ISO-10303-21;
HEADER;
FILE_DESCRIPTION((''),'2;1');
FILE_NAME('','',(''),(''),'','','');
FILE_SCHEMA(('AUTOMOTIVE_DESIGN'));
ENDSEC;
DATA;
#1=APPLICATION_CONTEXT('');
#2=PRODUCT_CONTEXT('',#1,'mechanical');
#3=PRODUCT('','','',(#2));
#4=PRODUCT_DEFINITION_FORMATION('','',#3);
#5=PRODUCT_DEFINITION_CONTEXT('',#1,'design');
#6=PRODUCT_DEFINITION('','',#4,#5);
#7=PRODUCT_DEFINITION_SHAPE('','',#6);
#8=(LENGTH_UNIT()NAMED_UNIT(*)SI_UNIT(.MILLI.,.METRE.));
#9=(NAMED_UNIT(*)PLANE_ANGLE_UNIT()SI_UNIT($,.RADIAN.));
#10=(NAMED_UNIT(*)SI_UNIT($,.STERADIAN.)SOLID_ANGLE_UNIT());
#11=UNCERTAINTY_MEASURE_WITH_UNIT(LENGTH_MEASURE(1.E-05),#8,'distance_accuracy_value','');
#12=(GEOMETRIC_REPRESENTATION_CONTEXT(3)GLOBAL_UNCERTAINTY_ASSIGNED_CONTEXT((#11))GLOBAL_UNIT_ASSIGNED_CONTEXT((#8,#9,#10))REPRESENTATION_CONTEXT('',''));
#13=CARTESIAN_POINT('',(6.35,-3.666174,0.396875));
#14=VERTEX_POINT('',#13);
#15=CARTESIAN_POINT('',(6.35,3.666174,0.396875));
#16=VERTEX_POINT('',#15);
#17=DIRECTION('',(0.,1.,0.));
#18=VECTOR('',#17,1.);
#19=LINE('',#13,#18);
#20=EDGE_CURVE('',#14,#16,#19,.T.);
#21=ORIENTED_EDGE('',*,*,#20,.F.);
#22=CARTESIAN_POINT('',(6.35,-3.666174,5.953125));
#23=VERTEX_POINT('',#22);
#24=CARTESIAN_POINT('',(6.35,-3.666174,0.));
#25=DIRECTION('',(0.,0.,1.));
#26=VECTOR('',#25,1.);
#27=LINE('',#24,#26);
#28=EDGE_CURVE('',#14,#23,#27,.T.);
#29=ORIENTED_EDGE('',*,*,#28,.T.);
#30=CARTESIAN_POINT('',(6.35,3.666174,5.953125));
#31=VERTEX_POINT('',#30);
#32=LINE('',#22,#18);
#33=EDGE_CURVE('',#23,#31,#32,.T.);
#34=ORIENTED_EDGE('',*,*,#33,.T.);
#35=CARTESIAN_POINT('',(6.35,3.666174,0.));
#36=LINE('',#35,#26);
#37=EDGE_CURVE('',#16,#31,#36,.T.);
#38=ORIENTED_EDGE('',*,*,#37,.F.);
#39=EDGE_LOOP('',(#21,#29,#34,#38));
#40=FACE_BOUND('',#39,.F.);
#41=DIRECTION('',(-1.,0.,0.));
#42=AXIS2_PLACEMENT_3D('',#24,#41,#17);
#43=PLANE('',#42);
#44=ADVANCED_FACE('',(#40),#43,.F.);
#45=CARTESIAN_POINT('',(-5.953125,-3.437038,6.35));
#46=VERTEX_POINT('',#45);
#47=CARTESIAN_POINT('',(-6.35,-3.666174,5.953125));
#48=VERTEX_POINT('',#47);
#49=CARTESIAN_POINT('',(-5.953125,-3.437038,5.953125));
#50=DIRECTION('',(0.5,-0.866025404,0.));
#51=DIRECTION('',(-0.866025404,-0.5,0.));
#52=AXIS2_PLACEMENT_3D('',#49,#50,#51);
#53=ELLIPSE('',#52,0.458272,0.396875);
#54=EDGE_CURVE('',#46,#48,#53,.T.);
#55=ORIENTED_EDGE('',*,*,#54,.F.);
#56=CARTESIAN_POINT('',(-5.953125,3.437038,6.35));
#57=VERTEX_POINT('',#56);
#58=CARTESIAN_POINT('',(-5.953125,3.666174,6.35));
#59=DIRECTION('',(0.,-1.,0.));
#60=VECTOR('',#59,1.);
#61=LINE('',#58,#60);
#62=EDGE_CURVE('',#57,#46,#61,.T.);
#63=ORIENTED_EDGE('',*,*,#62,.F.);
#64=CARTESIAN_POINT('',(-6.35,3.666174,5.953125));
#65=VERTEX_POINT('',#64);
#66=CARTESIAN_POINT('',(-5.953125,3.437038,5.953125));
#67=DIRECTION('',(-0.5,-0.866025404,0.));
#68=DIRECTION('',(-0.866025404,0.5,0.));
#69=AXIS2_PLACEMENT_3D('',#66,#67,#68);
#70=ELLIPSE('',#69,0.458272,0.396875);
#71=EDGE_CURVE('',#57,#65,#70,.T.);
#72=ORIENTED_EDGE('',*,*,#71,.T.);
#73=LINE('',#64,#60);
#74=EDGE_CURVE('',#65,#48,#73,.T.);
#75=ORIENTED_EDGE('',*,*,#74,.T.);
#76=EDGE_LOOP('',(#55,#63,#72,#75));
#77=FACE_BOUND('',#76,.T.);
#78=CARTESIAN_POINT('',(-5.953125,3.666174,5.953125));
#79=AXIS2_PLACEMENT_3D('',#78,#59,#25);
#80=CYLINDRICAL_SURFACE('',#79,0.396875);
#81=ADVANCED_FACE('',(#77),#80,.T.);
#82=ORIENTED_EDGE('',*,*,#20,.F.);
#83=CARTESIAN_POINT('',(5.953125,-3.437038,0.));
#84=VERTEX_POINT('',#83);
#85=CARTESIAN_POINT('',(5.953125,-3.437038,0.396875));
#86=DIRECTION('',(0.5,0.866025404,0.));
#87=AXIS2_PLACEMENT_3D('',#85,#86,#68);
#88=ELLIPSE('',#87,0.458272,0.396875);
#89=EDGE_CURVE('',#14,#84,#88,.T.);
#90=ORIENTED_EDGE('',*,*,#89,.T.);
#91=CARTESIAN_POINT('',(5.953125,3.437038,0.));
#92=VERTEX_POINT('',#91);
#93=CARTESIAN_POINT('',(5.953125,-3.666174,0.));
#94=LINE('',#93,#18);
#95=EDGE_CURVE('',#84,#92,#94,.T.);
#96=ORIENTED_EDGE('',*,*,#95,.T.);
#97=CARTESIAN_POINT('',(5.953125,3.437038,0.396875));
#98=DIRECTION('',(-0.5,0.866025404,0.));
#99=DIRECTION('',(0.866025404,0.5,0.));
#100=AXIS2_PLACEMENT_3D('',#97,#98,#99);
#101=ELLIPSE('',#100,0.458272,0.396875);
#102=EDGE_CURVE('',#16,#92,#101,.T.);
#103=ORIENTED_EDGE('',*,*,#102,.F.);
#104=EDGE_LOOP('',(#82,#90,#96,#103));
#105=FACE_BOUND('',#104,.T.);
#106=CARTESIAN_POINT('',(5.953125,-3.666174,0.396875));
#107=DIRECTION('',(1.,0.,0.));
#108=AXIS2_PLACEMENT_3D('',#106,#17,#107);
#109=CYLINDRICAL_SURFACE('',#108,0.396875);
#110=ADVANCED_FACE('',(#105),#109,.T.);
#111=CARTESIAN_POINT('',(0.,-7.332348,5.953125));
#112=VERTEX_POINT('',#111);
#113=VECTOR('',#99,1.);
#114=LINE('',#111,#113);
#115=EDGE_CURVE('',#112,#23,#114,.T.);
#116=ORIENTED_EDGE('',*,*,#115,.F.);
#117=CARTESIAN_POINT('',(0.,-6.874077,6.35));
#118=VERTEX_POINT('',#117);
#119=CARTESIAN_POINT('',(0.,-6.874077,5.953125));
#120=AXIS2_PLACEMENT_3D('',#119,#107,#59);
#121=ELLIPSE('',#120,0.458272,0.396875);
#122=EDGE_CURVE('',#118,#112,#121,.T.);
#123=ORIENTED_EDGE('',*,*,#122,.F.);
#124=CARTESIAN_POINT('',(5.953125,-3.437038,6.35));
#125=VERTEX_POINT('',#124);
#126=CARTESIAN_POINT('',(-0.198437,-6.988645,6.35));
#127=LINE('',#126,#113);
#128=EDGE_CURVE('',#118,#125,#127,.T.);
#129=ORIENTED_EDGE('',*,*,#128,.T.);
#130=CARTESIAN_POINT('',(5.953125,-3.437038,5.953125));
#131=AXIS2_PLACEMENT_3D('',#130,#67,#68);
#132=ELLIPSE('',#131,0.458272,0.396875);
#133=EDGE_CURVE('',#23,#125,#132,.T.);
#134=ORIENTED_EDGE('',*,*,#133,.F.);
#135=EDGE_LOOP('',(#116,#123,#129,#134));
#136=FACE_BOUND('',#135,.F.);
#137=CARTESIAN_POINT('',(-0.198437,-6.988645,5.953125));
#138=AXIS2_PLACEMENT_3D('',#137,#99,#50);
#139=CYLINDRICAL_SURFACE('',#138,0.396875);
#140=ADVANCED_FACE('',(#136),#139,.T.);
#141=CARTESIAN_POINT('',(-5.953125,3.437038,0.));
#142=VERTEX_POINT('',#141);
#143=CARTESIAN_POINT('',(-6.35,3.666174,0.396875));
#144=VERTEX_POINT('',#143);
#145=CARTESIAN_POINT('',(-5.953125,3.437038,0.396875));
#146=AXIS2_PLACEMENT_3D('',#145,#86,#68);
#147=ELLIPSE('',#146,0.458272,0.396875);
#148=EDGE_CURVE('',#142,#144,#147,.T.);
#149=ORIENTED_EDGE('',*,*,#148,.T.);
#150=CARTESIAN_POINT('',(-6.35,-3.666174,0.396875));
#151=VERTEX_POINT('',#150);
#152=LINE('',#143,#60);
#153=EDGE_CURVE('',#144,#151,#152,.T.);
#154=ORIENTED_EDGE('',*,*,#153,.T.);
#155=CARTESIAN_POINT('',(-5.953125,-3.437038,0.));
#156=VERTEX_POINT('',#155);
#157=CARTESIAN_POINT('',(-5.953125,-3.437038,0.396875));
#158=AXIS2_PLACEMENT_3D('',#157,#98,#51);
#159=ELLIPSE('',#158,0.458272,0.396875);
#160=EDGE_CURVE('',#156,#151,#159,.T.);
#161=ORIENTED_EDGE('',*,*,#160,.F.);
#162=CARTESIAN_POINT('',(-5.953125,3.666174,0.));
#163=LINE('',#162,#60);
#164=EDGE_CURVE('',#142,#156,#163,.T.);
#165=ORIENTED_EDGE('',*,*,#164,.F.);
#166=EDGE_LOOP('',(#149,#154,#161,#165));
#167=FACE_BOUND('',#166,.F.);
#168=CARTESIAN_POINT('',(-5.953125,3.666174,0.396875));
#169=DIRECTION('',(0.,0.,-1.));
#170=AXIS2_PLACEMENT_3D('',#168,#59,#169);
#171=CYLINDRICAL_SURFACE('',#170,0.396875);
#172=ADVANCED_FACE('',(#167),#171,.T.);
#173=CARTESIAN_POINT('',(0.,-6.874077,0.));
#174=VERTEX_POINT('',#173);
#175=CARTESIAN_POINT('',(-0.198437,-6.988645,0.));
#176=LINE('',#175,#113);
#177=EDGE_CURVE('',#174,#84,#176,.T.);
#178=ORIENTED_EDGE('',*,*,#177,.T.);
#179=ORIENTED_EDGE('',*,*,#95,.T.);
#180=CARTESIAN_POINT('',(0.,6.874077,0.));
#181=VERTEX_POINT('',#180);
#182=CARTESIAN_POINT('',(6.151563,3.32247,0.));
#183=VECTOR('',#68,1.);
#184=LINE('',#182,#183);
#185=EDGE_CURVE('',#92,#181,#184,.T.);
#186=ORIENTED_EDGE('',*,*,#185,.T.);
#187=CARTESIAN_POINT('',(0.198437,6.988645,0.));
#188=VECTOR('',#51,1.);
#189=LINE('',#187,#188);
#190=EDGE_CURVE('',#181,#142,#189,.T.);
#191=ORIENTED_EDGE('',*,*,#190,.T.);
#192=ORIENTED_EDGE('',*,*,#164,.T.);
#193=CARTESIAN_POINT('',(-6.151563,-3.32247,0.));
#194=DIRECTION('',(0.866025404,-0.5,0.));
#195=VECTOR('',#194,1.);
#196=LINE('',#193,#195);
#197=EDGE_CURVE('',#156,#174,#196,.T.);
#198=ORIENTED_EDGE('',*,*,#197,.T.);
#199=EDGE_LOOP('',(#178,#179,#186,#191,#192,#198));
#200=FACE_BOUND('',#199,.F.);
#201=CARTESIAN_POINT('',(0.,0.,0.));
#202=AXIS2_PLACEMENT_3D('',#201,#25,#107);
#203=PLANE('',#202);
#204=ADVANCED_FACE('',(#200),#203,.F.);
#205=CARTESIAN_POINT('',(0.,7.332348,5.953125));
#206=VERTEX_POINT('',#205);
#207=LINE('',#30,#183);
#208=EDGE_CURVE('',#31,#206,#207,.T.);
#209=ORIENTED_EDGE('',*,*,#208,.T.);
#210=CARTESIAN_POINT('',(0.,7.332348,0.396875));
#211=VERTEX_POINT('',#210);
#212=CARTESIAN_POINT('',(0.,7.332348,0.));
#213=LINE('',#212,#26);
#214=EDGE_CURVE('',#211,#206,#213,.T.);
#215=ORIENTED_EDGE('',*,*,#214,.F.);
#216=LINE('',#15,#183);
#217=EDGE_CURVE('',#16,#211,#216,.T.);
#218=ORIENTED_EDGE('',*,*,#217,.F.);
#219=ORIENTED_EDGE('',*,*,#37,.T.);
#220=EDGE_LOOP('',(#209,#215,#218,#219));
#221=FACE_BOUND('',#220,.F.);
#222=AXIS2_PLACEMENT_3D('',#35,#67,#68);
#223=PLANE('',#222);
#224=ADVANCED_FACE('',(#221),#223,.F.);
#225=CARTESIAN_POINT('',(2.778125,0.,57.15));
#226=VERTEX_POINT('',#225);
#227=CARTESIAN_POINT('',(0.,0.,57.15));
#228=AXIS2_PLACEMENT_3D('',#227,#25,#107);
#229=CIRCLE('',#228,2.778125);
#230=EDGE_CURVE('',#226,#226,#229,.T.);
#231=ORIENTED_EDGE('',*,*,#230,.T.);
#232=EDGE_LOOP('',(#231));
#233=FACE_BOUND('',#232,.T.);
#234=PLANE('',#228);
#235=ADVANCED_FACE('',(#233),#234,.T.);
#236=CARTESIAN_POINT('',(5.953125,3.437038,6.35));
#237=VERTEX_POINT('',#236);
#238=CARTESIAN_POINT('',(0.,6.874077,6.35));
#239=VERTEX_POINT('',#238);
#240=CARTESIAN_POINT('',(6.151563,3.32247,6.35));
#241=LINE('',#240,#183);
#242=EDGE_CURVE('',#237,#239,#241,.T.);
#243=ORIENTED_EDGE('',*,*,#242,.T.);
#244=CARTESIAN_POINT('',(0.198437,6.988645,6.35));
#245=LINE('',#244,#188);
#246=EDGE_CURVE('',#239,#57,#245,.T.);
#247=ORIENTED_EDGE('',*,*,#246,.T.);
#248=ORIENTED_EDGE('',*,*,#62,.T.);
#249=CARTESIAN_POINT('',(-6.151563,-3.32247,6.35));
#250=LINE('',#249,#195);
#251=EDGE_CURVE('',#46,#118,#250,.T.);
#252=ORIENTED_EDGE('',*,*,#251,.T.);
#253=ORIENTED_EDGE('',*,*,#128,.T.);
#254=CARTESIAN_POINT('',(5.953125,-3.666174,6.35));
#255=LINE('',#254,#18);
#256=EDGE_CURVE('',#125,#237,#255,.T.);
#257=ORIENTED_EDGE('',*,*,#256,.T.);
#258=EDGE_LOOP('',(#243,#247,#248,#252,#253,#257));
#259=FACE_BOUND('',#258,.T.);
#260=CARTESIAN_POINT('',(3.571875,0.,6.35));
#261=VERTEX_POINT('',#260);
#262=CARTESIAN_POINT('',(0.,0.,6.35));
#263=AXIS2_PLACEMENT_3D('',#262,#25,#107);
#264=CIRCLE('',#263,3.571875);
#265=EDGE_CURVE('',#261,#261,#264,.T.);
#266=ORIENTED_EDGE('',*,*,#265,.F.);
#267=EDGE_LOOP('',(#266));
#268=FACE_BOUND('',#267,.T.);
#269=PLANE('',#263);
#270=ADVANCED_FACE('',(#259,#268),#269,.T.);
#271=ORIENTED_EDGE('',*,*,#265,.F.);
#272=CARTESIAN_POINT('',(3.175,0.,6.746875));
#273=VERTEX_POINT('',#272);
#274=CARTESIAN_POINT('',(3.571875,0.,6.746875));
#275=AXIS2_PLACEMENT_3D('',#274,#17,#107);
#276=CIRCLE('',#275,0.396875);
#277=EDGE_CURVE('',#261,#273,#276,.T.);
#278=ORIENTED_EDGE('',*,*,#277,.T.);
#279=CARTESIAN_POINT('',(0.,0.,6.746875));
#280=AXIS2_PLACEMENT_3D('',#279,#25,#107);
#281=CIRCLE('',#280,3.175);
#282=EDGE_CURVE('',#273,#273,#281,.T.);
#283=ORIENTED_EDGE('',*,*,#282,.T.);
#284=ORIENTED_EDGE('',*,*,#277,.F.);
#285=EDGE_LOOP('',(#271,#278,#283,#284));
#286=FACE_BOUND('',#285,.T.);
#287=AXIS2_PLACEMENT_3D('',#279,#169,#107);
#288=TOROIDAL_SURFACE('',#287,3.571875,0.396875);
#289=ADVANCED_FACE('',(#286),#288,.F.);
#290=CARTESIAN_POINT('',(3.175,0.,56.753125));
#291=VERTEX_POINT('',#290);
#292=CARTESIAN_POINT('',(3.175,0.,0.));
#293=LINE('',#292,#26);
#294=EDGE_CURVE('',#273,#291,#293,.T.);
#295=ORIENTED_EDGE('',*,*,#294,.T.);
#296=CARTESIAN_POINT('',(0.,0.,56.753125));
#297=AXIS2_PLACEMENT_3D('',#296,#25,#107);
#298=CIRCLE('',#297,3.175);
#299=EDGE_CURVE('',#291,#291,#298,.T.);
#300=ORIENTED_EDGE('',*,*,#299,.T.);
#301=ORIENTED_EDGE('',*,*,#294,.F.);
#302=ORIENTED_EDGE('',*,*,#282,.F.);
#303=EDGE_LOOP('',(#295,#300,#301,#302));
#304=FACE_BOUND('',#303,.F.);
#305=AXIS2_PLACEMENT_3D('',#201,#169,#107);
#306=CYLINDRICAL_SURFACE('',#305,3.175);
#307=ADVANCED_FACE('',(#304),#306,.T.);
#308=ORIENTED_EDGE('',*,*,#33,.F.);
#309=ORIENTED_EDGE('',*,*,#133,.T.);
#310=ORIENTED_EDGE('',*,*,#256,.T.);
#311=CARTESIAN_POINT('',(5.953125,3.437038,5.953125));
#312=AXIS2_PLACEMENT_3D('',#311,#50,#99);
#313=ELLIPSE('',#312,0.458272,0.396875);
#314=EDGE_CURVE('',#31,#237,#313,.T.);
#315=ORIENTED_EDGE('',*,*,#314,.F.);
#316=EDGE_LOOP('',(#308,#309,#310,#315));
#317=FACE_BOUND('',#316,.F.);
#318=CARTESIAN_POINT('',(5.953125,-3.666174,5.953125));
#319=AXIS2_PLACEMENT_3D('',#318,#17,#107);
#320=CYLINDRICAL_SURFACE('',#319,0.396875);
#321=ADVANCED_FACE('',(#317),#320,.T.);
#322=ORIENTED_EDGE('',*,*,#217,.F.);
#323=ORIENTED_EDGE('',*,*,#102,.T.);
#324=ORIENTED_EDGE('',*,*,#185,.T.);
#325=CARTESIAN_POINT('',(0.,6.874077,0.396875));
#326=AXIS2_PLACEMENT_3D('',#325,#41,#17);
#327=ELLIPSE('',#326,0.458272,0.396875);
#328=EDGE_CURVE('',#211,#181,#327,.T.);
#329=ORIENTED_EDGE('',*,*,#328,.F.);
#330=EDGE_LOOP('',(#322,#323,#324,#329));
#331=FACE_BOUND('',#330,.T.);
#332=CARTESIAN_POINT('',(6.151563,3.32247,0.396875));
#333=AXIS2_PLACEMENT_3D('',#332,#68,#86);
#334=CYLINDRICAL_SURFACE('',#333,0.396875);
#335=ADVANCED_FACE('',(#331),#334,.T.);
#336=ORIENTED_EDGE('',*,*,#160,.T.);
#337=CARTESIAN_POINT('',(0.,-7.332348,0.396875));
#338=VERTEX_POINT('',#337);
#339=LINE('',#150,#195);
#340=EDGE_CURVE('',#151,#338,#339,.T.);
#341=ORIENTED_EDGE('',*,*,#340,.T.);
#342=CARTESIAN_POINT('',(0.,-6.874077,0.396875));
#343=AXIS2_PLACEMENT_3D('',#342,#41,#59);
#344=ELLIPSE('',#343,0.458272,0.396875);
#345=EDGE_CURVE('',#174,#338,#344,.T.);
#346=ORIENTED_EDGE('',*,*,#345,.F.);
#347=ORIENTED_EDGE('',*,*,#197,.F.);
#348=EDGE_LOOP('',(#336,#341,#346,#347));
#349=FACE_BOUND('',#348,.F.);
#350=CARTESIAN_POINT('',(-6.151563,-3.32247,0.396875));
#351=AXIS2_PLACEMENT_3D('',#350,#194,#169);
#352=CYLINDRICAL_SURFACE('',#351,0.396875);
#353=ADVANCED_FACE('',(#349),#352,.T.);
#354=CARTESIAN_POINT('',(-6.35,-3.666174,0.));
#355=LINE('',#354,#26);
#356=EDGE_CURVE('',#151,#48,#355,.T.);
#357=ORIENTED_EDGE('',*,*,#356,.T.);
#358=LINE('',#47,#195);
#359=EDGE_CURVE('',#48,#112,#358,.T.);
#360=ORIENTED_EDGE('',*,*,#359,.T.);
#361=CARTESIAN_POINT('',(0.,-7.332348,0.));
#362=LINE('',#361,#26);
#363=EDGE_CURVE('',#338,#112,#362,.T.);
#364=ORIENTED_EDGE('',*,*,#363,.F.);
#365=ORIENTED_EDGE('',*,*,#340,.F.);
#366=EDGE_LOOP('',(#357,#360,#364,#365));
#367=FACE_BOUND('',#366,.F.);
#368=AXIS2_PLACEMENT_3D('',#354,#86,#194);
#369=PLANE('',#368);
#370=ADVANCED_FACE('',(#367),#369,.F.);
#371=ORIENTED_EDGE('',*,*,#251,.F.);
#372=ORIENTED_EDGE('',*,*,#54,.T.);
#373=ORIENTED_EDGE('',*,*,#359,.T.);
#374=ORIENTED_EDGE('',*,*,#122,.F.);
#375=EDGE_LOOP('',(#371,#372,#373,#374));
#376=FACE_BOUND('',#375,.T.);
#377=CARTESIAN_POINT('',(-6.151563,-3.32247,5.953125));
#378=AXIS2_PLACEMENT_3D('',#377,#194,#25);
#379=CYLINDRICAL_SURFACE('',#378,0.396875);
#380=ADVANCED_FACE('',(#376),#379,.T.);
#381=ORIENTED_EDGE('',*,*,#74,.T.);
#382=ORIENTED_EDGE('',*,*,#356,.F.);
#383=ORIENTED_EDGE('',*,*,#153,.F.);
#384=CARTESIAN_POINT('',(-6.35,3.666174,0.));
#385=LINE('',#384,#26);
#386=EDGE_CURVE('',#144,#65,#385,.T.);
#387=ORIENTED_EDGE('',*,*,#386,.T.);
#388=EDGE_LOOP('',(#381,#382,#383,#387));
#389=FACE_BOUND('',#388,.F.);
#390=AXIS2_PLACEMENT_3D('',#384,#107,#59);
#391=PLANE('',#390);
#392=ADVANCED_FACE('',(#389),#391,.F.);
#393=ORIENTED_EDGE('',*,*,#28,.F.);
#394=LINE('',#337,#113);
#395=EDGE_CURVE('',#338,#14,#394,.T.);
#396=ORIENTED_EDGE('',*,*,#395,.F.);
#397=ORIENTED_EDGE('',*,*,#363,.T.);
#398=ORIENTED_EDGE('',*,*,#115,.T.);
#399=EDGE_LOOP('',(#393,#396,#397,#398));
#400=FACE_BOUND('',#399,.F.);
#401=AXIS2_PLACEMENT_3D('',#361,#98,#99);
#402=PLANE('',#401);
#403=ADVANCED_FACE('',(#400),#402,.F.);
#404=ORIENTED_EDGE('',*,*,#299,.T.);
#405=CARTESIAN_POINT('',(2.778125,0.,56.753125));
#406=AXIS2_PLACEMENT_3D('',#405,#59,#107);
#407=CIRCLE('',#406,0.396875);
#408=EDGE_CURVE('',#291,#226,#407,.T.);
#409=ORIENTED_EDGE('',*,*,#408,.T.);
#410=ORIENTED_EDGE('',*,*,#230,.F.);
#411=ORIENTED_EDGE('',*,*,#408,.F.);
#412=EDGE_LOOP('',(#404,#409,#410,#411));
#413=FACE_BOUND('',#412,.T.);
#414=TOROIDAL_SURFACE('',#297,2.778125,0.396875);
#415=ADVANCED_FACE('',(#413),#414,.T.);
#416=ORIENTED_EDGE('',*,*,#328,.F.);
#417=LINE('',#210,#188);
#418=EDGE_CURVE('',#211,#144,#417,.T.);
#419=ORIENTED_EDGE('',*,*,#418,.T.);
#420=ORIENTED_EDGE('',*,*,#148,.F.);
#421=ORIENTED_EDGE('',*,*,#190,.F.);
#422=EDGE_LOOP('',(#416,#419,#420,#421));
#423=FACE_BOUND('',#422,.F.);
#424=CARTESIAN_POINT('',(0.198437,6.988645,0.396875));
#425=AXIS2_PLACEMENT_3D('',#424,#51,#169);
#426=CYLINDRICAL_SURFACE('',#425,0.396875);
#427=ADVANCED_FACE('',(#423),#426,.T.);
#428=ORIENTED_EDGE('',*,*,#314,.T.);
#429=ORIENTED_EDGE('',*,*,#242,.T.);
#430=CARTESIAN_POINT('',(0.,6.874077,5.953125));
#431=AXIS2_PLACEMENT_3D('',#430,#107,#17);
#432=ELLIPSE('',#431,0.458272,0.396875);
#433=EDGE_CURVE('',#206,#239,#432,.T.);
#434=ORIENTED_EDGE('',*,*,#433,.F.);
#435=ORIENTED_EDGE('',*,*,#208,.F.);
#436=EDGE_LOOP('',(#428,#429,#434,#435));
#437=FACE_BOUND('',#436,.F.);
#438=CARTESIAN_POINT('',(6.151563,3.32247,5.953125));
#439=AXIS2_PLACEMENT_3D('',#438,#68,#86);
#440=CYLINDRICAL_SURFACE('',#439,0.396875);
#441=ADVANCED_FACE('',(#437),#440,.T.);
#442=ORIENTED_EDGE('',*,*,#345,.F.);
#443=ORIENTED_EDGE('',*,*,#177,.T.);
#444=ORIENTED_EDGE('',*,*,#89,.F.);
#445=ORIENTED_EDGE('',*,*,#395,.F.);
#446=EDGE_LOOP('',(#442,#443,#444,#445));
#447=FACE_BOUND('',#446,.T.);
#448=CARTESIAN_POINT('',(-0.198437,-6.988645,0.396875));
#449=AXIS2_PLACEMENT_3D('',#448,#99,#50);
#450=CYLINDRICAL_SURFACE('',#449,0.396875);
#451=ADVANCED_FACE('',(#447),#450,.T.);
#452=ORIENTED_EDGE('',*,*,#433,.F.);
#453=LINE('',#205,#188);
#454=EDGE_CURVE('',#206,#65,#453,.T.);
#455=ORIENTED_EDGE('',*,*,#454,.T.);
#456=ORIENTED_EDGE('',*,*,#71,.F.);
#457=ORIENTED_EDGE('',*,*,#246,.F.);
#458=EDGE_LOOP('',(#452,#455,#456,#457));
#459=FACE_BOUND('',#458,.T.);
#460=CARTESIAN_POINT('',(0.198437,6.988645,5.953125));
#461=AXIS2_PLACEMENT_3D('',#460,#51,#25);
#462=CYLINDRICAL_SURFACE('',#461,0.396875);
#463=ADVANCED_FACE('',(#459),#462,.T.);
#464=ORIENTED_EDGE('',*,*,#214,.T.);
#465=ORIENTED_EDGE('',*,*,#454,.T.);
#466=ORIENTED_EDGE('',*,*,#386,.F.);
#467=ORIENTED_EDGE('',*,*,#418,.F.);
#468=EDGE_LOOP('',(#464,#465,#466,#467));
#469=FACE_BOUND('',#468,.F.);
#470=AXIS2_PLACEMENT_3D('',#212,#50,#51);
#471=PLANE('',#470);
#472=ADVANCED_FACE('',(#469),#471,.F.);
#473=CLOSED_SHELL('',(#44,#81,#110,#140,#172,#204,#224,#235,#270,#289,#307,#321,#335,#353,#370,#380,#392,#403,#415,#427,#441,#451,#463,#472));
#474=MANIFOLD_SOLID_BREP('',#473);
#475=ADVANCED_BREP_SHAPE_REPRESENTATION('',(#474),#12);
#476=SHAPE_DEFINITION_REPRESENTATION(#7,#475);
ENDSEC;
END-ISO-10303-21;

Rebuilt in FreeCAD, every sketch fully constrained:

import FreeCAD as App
import Part
import Sketcher
from FreeCAD import Vector
Q = App.Units.Quantity


def edges_at(feature, points):
    """Names of the edges that pass closest to the given points."""
    edges = feature.Shape.Edges
    near = lambda p: min(range(len(edges)), key=lambda i: edges[i].distToShape(Part.Vertex(*p))[0])
    return sorted({f"Edge{near(p) + 1}" for p in points})


def add_polygon(sketch, points):
    """Adds a closed chain of lines whose ends are joined by coincident constraints."""
    first, n = sketch.GeometryCount, len(points)
    for a, b in zip(points, points[1:] + points[:1]):
        sketch.addGeometry(Part.LineSegment(App.Vector(*a, 0), App.Vector(*b, 0)), False)
    for i in range(n):
        sketch.addConstraint(Sketcher.Constraint("Coincident", first + i, 2, first + (i + 1) % n, 1))

doc = App.newDocument("Part")
body = doc.addObject("PartDesign::Body", "Body")

# Sketch on XY plane
sketch1 = body.newObject("Sketcher::SketchObject", "Sketch")
sketch1.AttachmentSupport = (doc.getObject("XY_Plane"), [""])
sketch1.MapMode = "FlatFace"
sketch1.addGeometry(Part.Circle(Vector(0, 0, 0), Vector(0, 0, 1), 3.2), False)
sketch1.addConstraint(Sketcher.Constraint("Coincident", 0, 3, -1, 1))
sketch1.addConstraint(Sketcher.Constraint("Diameter", 0, Q("0.25 in")))
pad1 = body.newObject("PartDesign::Pad", "Pad")
pad1.Profile = sketch1
pad1.Length = Q("2.25 in")

# Sketch on XY plane
sketch2 = body.newObject("Sketcher::SketchObject", "Sketch001")
sketch2.AttachmentSupport = (doc.getObject("XY_Plane"), [""])
sketch2.MapMode = "FlatFace"
add_polygon(sketch2, [(6.3, -3.7), (6.3, 3.7), (0, 7.3), (-6.3, 3.7), (-6.3, -3.7), (0, -7.3)])  # lines 0-5
sketch2.addGeometry(Part.Circle(Vector(0, 0, 0), Vector(0, 0, 1), 3.2), False)  # 6
sketch2.addConstraint(Sketcher.Constraint("Vertical", 0))
sketch2.addConstraint(Sketcher.Constraint("Vertical", 3))
sketch2.addConstraint(Sketcher.Constraint("Coincident", 6, 3, -1, 1))
sketch2.addConstraint(Sketcher.Constraint("Symmetric", 0, 2, 3, 2, -1, 1))
sketch2.addConstraint(Sketcher.Constraint("Symmetric", 1, 2, 4, 2, -1, 1))
sketch2.addConstraint(Sketcher.Constraint("PointOnObject", 1, 2, -2))
sketch2.addConstraint(Sketcher.Constraint("Parallel", 2, 5))
sketch2.addConstraint(Sketcher.Constraint("Horizontal", 0, 2, 2, 2))
sketch2.addConstraint(Sketcher.Constraint("Diameter", 6, Q("0.25 in")))
sketch2.addConstraint(Sketcher.Constraint("Angle", 1, Q("150 deg")))
sketch2.addConstraint(Sketcher.Constraint("DistanceX", 2, 2, 0, 2, Q("0.5 in")))
sketch2.addConstraint(Sketcher.Constraint("DistanceY", 0, 1, 0, 2, Q("7.332348 mm")))
pad2 = body.newObject("PartDesign::Pad", "Pad001")
pad2.Profile = sketch2
pad2.Length = Q("0.25 in")
doc.recompute()

fillet = body.newObject("PartDesign::Fillet", "Fillet")
fillet.Base = (pad2, edges_at(pad2, [
    (6.35, 0, 6.35),
    (3.175, 5.499, 6.35),
    (-3.175, 5.499, 6.35),
    (-6.35, 0, 6.35),
    (-3.175, -5.499, 6.35),
    (3.175, -5.499, 6.35),
    (-3.175, 0, 6.35),
    (6.35, 0, 0),
    (3.175, 5.499, 0),
    (-3.175, 5.499, 0),
    (-6.35, 0, 0),
    (-3.175, -5.499, 0),
    (3.175, -5.499, 0),
    (-3.175, 0, 57.15),
]))
fillet.Radius = Q("0.015625 in")

doc.recompute()
